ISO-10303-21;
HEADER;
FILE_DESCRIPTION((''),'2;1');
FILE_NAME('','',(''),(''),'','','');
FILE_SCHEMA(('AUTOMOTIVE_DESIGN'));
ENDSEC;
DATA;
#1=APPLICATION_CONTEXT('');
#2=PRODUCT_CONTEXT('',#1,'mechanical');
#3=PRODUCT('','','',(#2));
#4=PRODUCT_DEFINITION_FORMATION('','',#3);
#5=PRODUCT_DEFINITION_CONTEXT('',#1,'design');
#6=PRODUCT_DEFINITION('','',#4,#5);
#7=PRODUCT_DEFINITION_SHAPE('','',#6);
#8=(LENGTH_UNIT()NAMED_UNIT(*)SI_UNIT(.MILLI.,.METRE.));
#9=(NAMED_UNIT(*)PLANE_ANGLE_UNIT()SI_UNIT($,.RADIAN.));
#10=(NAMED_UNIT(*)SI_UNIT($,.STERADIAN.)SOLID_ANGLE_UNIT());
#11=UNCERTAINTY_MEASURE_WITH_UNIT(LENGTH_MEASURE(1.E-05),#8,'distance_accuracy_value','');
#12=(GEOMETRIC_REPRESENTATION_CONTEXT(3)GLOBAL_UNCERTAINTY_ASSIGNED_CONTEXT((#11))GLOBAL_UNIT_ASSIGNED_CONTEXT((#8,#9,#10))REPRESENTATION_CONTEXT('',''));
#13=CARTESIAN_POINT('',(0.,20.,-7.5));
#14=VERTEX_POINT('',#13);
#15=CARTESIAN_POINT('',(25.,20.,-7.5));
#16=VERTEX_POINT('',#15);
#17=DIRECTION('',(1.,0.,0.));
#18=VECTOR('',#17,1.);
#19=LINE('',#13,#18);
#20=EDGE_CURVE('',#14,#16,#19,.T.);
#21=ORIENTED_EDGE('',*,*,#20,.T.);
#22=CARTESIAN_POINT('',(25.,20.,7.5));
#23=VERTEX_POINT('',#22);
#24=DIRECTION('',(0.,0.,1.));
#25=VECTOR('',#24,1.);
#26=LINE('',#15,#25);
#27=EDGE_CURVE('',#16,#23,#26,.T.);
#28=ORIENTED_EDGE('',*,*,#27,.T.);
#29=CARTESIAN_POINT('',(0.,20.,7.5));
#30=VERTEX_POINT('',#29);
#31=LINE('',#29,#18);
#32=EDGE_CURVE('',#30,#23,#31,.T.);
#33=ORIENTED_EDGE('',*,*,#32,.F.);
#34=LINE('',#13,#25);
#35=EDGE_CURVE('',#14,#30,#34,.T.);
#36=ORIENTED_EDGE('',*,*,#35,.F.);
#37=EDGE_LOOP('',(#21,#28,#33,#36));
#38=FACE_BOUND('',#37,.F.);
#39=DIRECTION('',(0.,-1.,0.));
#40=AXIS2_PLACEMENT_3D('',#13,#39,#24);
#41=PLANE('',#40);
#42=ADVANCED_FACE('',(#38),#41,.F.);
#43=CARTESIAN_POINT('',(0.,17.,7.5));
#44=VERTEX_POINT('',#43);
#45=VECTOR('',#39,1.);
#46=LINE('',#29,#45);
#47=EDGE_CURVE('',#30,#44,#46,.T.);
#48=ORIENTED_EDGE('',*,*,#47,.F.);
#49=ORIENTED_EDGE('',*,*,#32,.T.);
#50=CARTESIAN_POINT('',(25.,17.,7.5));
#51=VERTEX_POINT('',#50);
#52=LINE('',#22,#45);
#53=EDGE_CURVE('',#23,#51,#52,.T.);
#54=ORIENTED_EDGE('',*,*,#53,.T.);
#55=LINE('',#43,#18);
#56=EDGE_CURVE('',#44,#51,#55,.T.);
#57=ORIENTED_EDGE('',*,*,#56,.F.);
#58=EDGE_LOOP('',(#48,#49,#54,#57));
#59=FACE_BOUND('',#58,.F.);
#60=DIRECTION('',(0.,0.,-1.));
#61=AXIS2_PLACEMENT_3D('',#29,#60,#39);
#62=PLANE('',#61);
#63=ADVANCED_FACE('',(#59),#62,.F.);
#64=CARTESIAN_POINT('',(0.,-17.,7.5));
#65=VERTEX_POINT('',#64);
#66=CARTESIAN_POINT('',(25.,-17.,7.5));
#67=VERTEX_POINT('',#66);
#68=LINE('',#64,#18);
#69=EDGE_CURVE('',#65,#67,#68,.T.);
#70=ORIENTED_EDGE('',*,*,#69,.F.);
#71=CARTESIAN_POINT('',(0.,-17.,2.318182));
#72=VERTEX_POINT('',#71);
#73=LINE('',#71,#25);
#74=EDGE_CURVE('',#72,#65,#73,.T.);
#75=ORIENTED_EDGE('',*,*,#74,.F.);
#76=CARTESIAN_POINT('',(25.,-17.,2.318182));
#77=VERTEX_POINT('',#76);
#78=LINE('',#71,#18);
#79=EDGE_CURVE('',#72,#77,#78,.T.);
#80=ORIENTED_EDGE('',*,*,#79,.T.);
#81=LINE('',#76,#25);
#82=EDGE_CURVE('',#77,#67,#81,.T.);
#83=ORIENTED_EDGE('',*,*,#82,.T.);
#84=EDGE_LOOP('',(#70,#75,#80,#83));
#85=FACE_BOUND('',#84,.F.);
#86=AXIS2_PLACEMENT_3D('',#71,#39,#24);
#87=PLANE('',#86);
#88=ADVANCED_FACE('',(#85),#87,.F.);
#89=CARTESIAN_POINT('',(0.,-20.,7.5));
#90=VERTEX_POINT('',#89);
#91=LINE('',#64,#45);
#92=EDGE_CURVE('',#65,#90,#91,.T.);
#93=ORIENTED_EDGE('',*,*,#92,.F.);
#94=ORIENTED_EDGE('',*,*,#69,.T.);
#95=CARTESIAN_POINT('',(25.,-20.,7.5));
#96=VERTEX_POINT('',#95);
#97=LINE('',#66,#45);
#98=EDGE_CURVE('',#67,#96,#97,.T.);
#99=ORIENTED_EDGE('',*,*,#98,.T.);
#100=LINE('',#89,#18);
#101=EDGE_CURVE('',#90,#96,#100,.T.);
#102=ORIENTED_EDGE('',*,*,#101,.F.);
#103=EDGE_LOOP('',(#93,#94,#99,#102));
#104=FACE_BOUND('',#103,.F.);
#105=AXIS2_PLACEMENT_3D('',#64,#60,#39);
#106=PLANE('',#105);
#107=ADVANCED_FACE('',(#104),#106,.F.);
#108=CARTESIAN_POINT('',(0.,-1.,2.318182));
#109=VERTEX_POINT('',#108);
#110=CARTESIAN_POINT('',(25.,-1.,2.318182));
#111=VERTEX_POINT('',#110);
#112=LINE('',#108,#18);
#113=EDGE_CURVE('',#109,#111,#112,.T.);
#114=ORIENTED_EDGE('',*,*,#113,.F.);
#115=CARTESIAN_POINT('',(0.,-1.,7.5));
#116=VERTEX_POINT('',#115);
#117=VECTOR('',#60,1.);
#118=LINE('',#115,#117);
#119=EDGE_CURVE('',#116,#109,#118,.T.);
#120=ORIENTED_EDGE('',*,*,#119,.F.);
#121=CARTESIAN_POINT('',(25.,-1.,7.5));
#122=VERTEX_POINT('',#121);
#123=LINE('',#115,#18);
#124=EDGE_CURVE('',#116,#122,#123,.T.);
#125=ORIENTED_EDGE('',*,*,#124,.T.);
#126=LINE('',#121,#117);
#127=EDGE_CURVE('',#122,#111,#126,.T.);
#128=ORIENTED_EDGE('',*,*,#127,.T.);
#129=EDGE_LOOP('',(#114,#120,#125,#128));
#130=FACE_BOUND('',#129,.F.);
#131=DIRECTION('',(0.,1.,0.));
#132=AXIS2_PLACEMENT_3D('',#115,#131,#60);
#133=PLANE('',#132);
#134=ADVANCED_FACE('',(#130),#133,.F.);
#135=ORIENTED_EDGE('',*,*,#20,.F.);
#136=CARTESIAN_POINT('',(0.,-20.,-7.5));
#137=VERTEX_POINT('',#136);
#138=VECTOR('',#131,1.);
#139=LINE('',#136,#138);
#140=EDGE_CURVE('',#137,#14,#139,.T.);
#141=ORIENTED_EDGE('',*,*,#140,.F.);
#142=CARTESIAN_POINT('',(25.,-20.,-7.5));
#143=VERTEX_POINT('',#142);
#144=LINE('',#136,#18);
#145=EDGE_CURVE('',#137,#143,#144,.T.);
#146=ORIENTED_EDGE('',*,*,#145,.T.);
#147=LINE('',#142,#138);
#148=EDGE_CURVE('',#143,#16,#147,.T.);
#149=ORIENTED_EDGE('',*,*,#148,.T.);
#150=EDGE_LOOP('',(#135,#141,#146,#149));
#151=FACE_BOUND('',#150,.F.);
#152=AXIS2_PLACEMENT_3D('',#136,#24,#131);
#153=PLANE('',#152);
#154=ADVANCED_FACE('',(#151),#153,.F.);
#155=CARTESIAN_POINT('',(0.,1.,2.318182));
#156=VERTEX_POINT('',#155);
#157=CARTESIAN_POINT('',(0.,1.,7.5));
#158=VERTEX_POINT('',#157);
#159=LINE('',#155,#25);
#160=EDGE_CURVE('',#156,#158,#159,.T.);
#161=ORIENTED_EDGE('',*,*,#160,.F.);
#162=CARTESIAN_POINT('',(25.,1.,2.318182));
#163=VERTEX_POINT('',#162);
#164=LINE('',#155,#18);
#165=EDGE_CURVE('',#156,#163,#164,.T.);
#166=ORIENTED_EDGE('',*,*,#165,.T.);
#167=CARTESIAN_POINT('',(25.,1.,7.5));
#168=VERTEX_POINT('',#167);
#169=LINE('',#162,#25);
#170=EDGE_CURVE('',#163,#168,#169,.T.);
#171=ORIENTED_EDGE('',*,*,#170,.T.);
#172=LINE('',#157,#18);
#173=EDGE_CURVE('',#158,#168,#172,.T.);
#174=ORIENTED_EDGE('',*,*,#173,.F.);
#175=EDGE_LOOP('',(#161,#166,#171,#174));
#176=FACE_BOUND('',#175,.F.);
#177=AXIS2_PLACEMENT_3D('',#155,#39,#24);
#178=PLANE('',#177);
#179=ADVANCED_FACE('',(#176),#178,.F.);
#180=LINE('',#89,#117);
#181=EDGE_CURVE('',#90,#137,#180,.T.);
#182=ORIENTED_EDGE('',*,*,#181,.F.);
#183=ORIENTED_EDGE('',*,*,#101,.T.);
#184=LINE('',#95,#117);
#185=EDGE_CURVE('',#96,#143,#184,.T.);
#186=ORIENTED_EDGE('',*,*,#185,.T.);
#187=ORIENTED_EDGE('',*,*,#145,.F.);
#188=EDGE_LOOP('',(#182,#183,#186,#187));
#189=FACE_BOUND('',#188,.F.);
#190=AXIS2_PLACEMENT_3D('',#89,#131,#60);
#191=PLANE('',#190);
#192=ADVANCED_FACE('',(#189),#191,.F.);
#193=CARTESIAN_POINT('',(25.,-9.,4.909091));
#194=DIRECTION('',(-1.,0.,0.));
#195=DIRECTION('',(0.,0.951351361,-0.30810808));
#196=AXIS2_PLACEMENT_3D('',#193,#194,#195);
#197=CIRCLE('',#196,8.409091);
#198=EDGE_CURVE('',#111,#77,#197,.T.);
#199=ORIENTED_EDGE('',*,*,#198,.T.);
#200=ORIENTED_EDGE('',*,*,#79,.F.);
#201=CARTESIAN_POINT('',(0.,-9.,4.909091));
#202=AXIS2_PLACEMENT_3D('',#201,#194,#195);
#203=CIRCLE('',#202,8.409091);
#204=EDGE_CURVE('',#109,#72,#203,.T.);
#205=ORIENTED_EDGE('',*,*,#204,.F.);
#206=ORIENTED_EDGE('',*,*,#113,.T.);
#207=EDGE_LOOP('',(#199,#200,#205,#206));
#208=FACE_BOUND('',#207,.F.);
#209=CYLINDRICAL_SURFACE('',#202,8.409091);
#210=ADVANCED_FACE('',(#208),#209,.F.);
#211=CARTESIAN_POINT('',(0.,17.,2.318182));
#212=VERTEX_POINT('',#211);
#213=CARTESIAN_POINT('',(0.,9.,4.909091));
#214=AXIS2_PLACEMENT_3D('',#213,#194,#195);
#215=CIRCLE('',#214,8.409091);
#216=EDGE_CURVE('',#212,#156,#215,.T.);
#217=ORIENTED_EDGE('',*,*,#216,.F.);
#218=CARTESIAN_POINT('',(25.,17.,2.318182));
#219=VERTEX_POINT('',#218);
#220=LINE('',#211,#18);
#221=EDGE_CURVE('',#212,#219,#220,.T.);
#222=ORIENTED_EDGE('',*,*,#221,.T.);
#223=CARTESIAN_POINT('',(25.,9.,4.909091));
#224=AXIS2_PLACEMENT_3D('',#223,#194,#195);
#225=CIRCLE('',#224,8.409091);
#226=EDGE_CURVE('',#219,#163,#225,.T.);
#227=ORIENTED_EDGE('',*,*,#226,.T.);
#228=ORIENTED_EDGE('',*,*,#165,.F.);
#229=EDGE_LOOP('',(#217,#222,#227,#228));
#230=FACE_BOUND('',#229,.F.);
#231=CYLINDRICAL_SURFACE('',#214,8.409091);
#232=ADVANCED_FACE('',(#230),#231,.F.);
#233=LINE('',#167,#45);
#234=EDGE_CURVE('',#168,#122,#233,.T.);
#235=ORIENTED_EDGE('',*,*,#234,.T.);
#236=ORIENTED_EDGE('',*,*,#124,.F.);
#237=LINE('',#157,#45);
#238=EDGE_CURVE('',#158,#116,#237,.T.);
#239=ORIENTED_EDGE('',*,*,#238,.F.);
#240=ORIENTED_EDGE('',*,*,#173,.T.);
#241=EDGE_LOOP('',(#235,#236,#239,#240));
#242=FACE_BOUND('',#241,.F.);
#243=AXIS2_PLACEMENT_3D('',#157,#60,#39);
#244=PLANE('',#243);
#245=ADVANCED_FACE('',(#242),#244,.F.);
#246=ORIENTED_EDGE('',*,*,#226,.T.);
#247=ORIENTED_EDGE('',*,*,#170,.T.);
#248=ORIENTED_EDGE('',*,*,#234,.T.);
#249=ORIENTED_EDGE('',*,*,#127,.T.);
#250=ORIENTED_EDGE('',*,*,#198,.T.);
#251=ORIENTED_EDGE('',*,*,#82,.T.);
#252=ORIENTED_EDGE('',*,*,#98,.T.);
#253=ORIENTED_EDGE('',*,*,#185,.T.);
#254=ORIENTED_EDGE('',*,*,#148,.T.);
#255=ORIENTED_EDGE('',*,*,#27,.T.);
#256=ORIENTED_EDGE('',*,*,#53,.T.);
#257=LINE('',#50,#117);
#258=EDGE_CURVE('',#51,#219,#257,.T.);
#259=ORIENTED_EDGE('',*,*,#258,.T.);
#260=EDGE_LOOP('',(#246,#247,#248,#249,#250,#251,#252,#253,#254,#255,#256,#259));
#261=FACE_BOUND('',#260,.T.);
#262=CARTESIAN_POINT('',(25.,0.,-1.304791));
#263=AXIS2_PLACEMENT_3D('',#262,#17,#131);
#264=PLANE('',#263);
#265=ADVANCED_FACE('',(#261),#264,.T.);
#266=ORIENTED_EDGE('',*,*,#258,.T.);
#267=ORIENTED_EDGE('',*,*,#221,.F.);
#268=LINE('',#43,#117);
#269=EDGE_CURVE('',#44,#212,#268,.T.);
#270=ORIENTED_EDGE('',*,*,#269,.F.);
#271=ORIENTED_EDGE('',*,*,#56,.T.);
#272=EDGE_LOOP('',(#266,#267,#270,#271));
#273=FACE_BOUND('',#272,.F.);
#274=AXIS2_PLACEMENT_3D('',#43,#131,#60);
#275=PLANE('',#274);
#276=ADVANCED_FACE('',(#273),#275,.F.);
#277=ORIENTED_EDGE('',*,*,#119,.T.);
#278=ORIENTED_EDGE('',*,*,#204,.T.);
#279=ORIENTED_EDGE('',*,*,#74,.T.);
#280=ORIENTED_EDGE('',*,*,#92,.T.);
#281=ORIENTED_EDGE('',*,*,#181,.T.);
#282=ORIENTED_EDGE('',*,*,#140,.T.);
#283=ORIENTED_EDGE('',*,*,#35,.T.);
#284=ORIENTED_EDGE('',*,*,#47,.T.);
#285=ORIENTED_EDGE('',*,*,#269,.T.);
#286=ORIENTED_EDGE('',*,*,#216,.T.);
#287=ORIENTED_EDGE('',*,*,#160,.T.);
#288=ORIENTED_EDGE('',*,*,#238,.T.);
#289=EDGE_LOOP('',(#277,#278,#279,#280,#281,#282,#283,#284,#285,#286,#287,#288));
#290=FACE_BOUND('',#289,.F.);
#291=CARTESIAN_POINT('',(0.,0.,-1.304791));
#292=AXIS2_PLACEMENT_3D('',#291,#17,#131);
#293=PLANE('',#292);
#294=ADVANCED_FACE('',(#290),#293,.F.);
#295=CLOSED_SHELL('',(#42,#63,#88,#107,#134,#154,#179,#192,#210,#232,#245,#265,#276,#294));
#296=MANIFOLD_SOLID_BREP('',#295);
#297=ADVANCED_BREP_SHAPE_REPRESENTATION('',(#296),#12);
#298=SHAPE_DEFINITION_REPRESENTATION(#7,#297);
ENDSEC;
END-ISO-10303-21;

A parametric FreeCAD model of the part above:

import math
import FreeCAD as App
import Part
import Sketcher
from FreeCAD import Vector
Q = App.Units.Quantity

doc = App.newDocument("Part")
params = doc.addObject("Spreadsheet::Sheet", "Params")
for row, (alias, value) in enumerate([
    ("sketch1_width", "40 mm"),
    ("sketch1_width2", "3 mm"),
    ("sketch1_width3", "2 mm"),
    ("sketch1_height", "15 mm"),
    ("pad1_length", "25 mm"),
], start=1):
    params.set(f"A{row}", alias)
    params.set(f"B{row}", "=" + value)
    params.setAlias(f"B{row}", alias)

body = doc.addObject("PartDesign::Body", "Body")

sketch1 = body.newObject("Sketcher::SketchObject", "Sketch")
sketch1.AttachmentSupport = (doc.getObject("YZ_Plane"), [""])
sketch1.MapMode = "FlatFace"
sketch1.addGeometry([
    Part.LineSegment(Vector(-20, -7.5, 0), Vector(20, -7.5, 0)),
    Part.LineSegment(Vector(20, -7.5, 0), Vector(20, 7.5, 0)),
    Part.LineSegment(Vector(20, 7.5, 0), Vector(17, 7.5, 0)),
    Part.LineSegment(Vector(17, 7.5, 0), Vector(17, 2.3, 0)),
    Part.ArcOfCircle(Part.Circle(Vector(9, 4.9, 0), Vector(0, 0, 1), 8.4), math.radians(-162), math.radians(-18)),
    Part.LineSegment(Vector(1, 2.3, 0), Vector(1, 7.5, 0)),
    Part.LineSegment(Vector(1, 7.5, 0), Vector(-1, 7.5, 0)),
    Part.LineSegment(Vector(-1, 7.5, 0), Vector(-1, 2.3, 0)),
    Part.ArcOfCircle(Part.Circle(Vector(-9, 4.9, 0), Vector(0, 0, 1), 8.4), math.radians(-162), math.radians(-18)),
    Part.LineSegment(Vector(-17, 2.3, 0), Vector(-17, 7.5, 0)),
    Part.LineSegment(Vector(-17, 7.5, 0), Vector(-20, 7.5, 0)),
    Part.LineSegment(Vector(-20, 7.5, 0), Vector(-20, -7.5, 0)),
], False)
sketch1.addConstraint([
    Sketcher.Constraint("Coincident", 0, 2, 1, 1),
    Sketcher.Constraint("Coincident", 1, 2, 2, 1),
    Sketcher.Constraint("Coincident", 2, 2, 3, 1),
    Sketcher.Constraint("Coincident", 3, 2, 4, 2),
    Sketcher.Constraint("Coincident", 4, 1, 5, 1),
    Sketcher.Constraint("Coincident", 5, 2, 6, 1),
    Sketcher.Constraint("Coincident", 6, 2, 7, 1),
    Sketcher.Constraint("Coincident", 7, 2, 8, 2),
    Sketcher.Constraint("Coincident", 8, 1, 9, 1),
    Sketcher.Constraint("Coincident", 9, 2, 10, 1),
    Sketcher.Constraint("Coincident", 10, 2, 11, 1),
    Sketcher.Constraint("Coincident", 11, 2, 0, 1),
    Sketcher.Constraint("Horizontal", 0),
    Sketcher.Constraint("Vertical", 1),
    Sketcher.Constraint("Horizontal", 2),
    Sketcher.Constraint("Vertical", 3),
    Sketcher.Constraint("Vertical", 5),
    Sketcher.Constraint("Horizontal", 6),
    Sketcher.Constraint("Vertical", 7),
    Sketcher.Constraint("Vertical", 9),
    Sketcher.Constraint("Horizontal", 10),
    Sketcher.Constraint("Vertical", 11),
    Sketcher.Constraint("Equal", 4, 8),
    Sketcher.Constraint("Symmetric", 0, 2, 10, 2, -1, 1),
    Sketcher.Constraint("Symmetric", 4, 3, 8, 3, -2),
    Sketcher.Constraint("Symmetric", 2, 2, 9, 2, -2),
    Sketcher.Constraint("Horizontal", 3, 2, 4, 1),
    Sketcher.Constraint("Horizontal", 2, 2, 5, 2),
    Sketcher.Constraint("Horizontal", 4, 1, 7, 2),
    Sketcher.Constraint("DistanceX", 0, 1, 0, 2, Q("40 mm")),
    Sketcher.Constraint("DistanceX", 2, 2, 2, 1, Q("3 mm")),
    Sketcher.Constraint("DistanceX", 6, 2, 6, 1, Q("2 mm")),
    Sketcher.Constraint("DistanceY", 1, 1, 1, 2, Q("15 mm")),
    Sketcher.Constraint("Radius", 4, Q("8.409091 mm")),
    Sketcher.Constraint("DistanceY", 3, 2, 3, 1, Q("5.181818 mm")),
])
sketch1.setExpression("Constraints[29]", "Params.sketch1_width")
sketch1.setExpression("Constraints[30]", "Params.sketch1_width2")
sketch1.setExpression("Constraints[31]", "Params.sketch1_width3")
sketch1.setExpression("Constraints[32]", "Params.sketch1_height")
pad1 = body.newObject("PartDesign::Pad", "Pad")
pad1.Profile = sketch1
pad1.setExpression("Length", "Params.pad1_length")

doc.recompute()
